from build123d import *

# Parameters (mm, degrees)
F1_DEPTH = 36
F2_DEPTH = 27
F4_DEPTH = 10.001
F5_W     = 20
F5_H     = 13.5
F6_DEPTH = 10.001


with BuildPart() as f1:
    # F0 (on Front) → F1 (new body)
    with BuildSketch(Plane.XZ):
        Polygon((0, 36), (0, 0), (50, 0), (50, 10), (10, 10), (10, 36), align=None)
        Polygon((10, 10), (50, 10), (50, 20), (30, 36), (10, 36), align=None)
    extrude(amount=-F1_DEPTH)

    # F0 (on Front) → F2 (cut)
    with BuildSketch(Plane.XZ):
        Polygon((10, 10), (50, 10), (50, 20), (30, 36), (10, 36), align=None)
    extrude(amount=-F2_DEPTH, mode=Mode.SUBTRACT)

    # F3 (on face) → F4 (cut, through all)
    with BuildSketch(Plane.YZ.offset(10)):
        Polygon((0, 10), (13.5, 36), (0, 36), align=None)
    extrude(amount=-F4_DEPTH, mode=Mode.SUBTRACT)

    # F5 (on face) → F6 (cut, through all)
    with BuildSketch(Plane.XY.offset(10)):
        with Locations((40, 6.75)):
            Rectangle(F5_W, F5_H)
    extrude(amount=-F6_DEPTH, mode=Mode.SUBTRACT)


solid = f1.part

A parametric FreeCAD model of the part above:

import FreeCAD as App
import Part
import Sketcher

V = App.Vector


def add_polygon(sketch, points):
    """Adds a closed chain of lines whose ends are joined by coincident constraints."""
    first, n = sketch.GeometryCount, len(points)
    for a, b in zip(points, points[1:] + points[:1]):
        sketch.addGeometry(Part.LineSegment(App.Vector(*a, 0), App.Vector(*b, 0)), False)
    for i in range(n):
        sketch.addConstraint(Sketcher.Constraint("Coincident", first + i, 2, first + (i + 1) % n, 1))

doc = App.newDocument("Part")
body = doc.addObject("PartDesign::Body", "Body")

# Sketch on XZ plane
sketch1 = doc.addObject("Sketcher::SketchObject", "Sketch")
body.addObject(sketch1)
sketch1.AttachmentSupport = (doc.XZ_Plane, [""])
sketch1.MapMode = "FlatFace"
add_polygon(sketch1, [(0, 36), (0, 0), (50, 0), (50, 20), (30, 36)])  # lines 0-4
sketch1.addConstraint([
    Sketcher.Constraint("Vertical", 0),
    Sketcher.Constraint("Horizontal", 1),
    Sketcher.Constraint("Vertical", 2),
    Sketcher.Constraint("Horizontal", 4),
    Sketcher.Constraint("Coincident", 0, 2, -1, 1),
    Sketcher.Constraint("DistanceX", 1, 1, 1, 2, 50.0),
    Sketcher.Constraint("DistanceX", 4, 2, 4, 1, 30.0),
    Sketcher.Constraint("DistanceY", 0, 2, 0, 1, 36.0),
    Sketcher.Constraint("DistanceY", 2, 1, 2, 2, 20.0),
])
pad1 = doc.addObject("PartDesign::Pad", "Pad")
body.addObject(pad1)
pad1.Profile = sketch1
pad1.Length = 36
pad1.Reversed = True

# Sketch on XZ plane
sketch2 = doc.addObject("Sketcher::SketchObject", "Sketch001")
body.addObject(sketch2)
sketch2.AttachmentSupport = (doc.XZ_Plane, [""])
sketch2.MapMode = "FlatFace"
add_polygon(sketch2, [(10, 10), (50, 10), (50, 20), (30, 36), (10, 36)])  # lines 0-4
sketch2.addConstraint([
    Sketcher.Constraint("Horizontal", 0),
    Sketcher.Constraint("Vertical", 1),
    Sketcher.Constraint("Horizontal", 3),
    Sketcher.Constraint("Vertical", 4),
    Sketcher.Constraint("DistanceX", 0, 1, 0, 2, 40.0),
    Sketcher.Constraint("DistanceX", 3, 2, 3, 1, 20.0),
    Sketcher.Constraint("DistanceY", 1, 1, 1, 2, 10.0),
    Sketcher.Constraint("DistanceY", 4, 2, 4, 1, 26.0),
    Sketcher.Constraint("DistanceX", -1, 1, 0, 2, 50.0),
    Sketcher.Constraint("DistanceY", -1, 1, 0, 2, 10.0),
])
pocket1 = doc.addObject("PartDesign::Pocket", "Pocket")
body.addObject(pocket1)
pocket1.Profile = sketch2
pocket1.Length = 27

# Sketch on YZ plane
sketch3 = doc.addObject("Sketcher::SketchObject", "Sketch002")
body.addObject(sketch3)
sketch3.AttachmentSupport = (doc.YZ_Plane, [""])
sketch3.MapMode = "FlatFace"
sketch3.AttachmentOffset = App.Placement(V(0, 0, 10), App.Rotation())
add_polygon(sketch3, [(0, 10), (13.5, 36), (0, 36)])  # lines 0-2
sketch3.addConstraint([
    Sketcher.Constraint("Horizontal", 1),
    Sketcher.Constraint("Vertical", 2),
    Sketcher.Constraint("PointOnObject", 1, 2, -2),
    Sketcher.Constraint("DistanceY", 2, 2, 2, 1, 26.0),
    Sketcher.Constraint("DistanceX", 1, 2, 1, 1, 13.5),
    Sketcher.Constraint("DistanceY", -1, 1, 0, 2, 36.0),
])
pocket2 = doc.addObject("PartDesign::Pocket", "Pocket001")
body.addObject(pocket2)
pocket2.Profile = sketch3
pocket2.Type = "ThroughAll"

# Sketch on XY plane
sketch4 = doc.addObject("Sketcher::SketchObject", "Sketch003")
body.addObject(sketch4)
sketch4.AttachmentSupport = (doc.XY_Plane, [""])
sketch4.MapMode = "FlatFace"
sketch4.AttachmentOffset = App.Placement(V(0, 0, 10), App.Rotation())
add_polygon(sketch4, [(30, 13.5), (30, 0), (50, 0), (50, 13.5)])  # lines 0-3
sketch4.addConstraint([
    Sketcher.Constraint("Vertical", 0),
    Sketcher.Constraint("Horizontal", 1),
    Sketcher.Constraint("Vertical", 2),
    Sketcher.Constraint("Horizontal", 3),
    Sketcher.Constraint("PointOnObject", 0, 2, -1),
    Sketcher.Constraint("DistanceX", 1, 1, 1, 2, 20.0),
    Sketcher.Constraint("DistanceY", 0, 2, 0, 1, 13.5),
    Sketcher.Constraint("DistanceX", -1, 1, 0, 2, 30.0),
])
pocket3 = doc.addObject("PartDesign::Pocket", "Pocket002")
body.addObject(pocket3)
pocket3.Profile = sketch4
pocket3.Type = "ThroughAll"

doc.recompute()
